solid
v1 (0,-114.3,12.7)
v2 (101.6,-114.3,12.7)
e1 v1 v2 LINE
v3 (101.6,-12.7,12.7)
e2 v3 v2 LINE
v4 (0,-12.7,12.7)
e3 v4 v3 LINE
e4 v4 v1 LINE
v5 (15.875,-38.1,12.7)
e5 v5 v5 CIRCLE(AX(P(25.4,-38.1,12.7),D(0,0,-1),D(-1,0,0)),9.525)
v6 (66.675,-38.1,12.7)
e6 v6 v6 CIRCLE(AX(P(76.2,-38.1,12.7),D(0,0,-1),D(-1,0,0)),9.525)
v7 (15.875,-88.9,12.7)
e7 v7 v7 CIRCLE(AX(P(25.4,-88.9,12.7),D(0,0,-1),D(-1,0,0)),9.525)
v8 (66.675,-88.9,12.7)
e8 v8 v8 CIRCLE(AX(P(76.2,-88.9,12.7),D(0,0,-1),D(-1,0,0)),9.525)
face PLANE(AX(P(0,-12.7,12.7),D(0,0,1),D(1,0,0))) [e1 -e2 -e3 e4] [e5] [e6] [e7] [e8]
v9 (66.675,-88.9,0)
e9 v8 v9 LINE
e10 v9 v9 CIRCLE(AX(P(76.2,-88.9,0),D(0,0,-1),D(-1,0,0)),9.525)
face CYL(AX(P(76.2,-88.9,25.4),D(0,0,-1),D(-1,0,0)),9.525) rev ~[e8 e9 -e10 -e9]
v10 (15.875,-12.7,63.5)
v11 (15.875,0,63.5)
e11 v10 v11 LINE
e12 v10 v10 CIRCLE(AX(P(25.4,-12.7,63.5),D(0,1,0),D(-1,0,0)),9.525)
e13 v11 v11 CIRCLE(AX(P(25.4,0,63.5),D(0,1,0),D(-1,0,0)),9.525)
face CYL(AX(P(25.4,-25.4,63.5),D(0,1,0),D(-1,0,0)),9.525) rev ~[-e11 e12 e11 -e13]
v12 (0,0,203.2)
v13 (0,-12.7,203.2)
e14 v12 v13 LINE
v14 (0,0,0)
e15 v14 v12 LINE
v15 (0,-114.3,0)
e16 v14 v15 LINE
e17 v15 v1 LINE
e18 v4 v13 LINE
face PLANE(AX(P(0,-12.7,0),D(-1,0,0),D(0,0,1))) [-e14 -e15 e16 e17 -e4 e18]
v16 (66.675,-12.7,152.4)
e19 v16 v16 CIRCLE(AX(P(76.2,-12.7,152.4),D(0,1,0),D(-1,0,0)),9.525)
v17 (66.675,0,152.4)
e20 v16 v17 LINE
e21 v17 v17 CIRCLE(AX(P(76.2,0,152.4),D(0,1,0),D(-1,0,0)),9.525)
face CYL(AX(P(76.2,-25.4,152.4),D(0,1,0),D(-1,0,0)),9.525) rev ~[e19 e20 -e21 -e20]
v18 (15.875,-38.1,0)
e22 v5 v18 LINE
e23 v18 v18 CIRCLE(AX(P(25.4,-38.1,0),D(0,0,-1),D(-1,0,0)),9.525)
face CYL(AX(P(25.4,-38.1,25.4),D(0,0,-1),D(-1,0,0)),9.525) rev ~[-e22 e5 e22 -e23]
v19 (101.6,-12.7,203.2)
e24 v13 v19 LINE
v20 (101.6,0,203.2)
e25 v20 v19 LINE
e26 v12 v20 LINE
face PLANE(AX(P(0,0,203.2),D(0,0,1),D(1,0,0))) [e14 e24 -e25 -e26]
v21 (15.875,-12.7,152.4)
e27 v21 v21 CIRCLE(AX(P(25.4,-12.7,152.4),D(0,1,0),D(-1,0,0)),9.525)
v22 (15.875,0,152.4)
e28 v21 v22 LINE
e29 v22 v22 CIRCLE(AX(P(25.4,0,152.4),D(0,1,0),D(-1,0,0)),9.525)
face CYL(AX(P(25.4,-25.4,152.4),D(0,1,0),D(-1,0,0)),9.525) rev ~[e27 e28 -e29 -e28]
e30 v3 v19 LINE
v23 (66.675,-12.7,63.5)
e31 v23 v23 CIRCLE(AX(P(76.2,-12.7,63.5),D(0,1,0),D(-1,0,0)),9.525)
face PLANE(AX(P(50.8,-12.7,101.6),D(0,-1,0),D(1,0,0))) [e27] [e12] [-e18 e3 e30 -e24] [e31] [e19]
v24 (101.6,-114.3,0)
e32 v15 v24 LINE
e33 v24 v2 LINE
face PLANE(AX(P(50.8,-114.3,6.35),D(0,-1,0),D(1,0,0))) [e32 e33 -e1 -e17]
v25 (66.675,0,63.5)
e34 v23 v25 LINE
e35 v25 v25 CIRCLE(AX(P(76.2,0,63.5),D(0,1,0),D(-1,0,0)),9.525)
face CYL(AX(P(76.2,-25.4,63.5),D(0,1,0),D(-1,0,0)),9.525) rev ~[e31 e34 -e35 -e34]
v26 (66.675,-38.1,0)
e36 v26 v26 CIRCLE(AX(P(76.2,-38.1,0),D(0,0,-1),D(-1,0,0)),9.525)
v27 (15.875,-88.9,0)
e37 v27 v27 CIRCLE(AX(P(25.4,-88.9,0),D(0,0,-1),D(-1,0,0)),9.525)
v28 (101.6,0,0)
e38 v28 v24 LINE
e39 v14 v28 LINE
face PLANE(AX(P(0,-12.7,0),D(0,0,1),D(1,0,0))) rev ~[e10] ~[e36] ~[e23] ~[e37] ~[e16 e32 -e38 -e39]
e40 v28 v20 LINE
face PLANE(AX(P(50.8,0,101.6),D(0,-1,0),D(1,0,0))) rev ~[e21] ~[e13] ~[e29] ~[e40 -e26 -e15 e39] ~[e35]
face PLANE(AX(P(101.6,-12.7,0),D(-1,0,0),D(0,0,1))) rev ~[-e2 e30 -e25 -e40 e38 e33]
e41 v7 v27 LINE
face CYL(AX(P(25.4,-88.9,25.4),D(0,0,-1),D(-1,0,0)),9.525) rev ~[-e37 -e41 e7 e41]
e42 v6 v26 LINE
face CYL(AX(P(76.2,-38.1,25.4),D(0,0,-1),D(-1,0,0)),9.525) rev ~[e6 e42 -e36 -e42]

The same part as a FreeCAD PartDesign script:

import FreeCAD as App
import Part
import Sketcher
from FreeCAD import Vector
Q = App.Units.Quantity

doc = App.newDocument("Part")
body = doc.addObject("PartDesign::Body", "Body")

# Sketch on XZ plane
sketch1 = doc.addObject("Sketcher::SketchObject", "Sketch")
body.addObject(sketch1)
sketch1.AttachmentSupport = (doc.XZ_Plane, [""])
sketch1.MapMode = "FlatFace"
sketch1.addGeometry(Part.LineSegment(Vector(0, 203.2, 0), Vector(0, 0, 0)), False)
sketch1.addGeometry(Part.LineSegment(Vector(0, 0, 0), Vector(101.6, 0, 0)), False)
sketch1.addGeometry(Part.LineSegment(Vector(101.6, 0, 0), Vector(101.6, 203.2, 0)), False)
sketch1.addGeometry(Part.LineSegment(Vector(101.6, 203.2, 0), Vector(0, 203.2, 0)), False)
sketch1.addConstraint(Sketcher.Constraint("Coincident", 0, 2, 1, 1))
sketch1.addConstraint(Sketcher.Constraint("Coincident", 1, 2, 2, 1))
sketch1.addConstraint(Sketcher.Constraint("Coincident", 2, 2, 3, 1))
sketch1.addConstraint(Sketcher.Constraint("Coincident", 3, 2, 0, 1))
sketch1.addConstraint(Sketcher.Constraint("Vertical", 0))
sketch1.addConstraint(Sketcher.Constraint("Horizontal", 1))
sketch1.addConstraint(Sketcher.Constraint("Vertical", 2))
sketch1.addConstraint(Sketcher.Constraint("Horizontal", 3))
sketch1.addConstraint(Sketcher.Constraint("Coincident", 0, 2, -1, 1))
sketch1.addConstraint(Sketcher.Constraint("DistanceX", 1, 1, 1, 2, Q("4 in")))
sketch1.addConstraint(Sketcher.Constraint("DistanceY", 0, 2, 0, 1, Q("8 in")))
pad1 = doc.addObject("PartDesign::Pad", "Pad")
body.addObject(pad1)
pad1.Profile = sketch1
pad1.Length = Q("0.5 in")

# Sketch on XZ plane
sketch2 = doc.addObject("Sketcher::SketchObject", "Sketch001")
body.addObject(sketch2)
sketch2.AttachmentSupport = (doc.XZ_Plane, [""])
sketch2.MapMode = "FlatFace"
sketch2.AttachmentOffset = App.Placement(Vector(0, 0, 0.5 * 25.4), App.Rotation())
sketch2.addGeometry(Part.LineSegment(Vector(0, 12.7, 0), Vector(0, 0, 0)), False)
sketch2.addGeometry(Part.LineSegment(Vector(0, 0, 0), Vector(101.6, 0, 0)), False)
sketch2.addGeometry(Part.LineSegment(Vector(101.6, 0, 0), Vector(101.6, 12.7, 0)), False)
sketch2.addGeometry(Part.LineSegment(Vector(101.6, 12.7, 0), Vector(0, 12.7, 0)), False)
sketch2.addConstraint(Sketcher.Constraint("Coincident", 0, 2, 1, 1))
sketch2.addConstraint(Sketcher.Constraint("Coincident", 1, 2, 2, 1))
sketch2.addConstraint(Sketcher.Constraint("Coincident", 2, 2, 3, 1))
sketch2.addConstraint(Sketcher.Constraint("Coincident", 3, 2, 0, 1))
sketch2.addConstraint(Sketcher.Constraint("Vertical", 0))
sketch2.addConstraint(Sketcher.Constraint("Horizontal", 1))
sketch2.addConstraint(Sketcher.Constraint("Vertical", 2))
sketch2.addConstraint(Sketcher.Constraint("Horizontal", 3))
sketch2.addConstraint(Sketcher.Constraint("Coincident", 0, 2, -1, 1))
sketch2.addConstraint(Sketcher.Constraint("DistanceX", 1, 1, 1, 2, Q("4 in")))
sketch2.addConstraint(Sketcher.Constraint("DistanceY", 0, 2, 0, 1, Q("0.5 in")))
pad2 = doc.addObject("PartDesign::Pad", "Pad001")
body.addObject(pad2)
pad2.Profile = sketch2
pad2.Length = Q("4 in")

# Sketch on XY plane
sketch3 = doc.addObject("Sketcher::SketchObject", "Sketch002")
body.addObject(sketch3)
sketch3.AttachmentSupport = (doc.XY_Plane, [""])
sketch3.MapMode = "FlatFace"
sketch3.AttachmentOffset = App.Placement(Vector(0, 0, 0.5 * 25.4), App.Rotation())
sketch3.addGeometry(Part.Circle(Vector(25.4, -88.9, 0), Vector(0, 0, 1), 9.525), False)
sketch3.addConstraint(Sketcher.Constraint("Diameter", 0, Q("0.75 in")))
sketch3.addConstraint(Sketcher.Constraint("DistanceX", -1, 1, 0, 3, Q("1 in")))
sketch3.addConstraint(Sketcher.Constraint("DistanceY", 0, 3, -1, 1, Q("3.5 in")))
doc.recompute()
hole = doc.addObject("PartDesign::Hole", "Hole")
body.addObject(hole)
hole.Profile = sketch3
hole.ThreadType = "None"
hole.Diameter = Q("0.75 in")
hole.DepthType = "Dimension"
hole.Depth = Q("0.5 in")
hole.DrillPoint = "Flat"

# Sketch on XY plane
sketch4 = doc.addObject("Sketcher::SketchObject", "Sketch003")
body.addObject(sketch4)
sketch4.AttachmentSupport = (doc.XY_Plane, [""])
sketch4.MapMode = "FlatFace"
sketch4.AttachmentOffset = App.Placement(Vector(0, 0, 0.5 * 25.4), App.Rotation())
sketch4.addGeometry(Part.Circle(Vector(25.4, -38.1, 0), Vector(0, 0, 1), 9.525), False)
sketch4.addGeometry(Part.Circle(Vector(76.2, -38.1, 0), Vector(0, 0, 1), 9.525), False)
sketch4.addGeometry(Part.Circle(Vector(76.2, -88.9, 0), Vector(0, 0, 1), 9.525), False)
sketch4.addConstraint(Sketcher.Constraint("Equal", 0, 1))
sketch4.addConstraint(Sketcher.Constraint("Equal", 1, 2))
sketch4.addConstraint(Sketcher.Constraint("Horizontal", 0, 3, 1, 3))
sketch4.addConstraint(Sketcher.Constraint("Vertical", 1, 3, 2, 3))
sketch4.addConstraint(Sketcher.Constraint("Diameter", 0, Q("0.75 in")))
sketch4.addConstraint(Sketcher.Constraint("DistanceX", -1, 1, 0, 3, Q("1 in")))
sketch4.addConstraint(Sketcher.Constraint("DistanceX", -1, 1, 1, 3, Q("3 in")))
sketch4.addConstraint(Sketcher.Constraint("DistanceY", 2, 3, 1, 3, Q("2 in")))
sketch4.addConstraint(Sketcher.Constraint("DistanceY", 0, 3, -1, 1, Q("1.5 in")))
doc.recompute()
hole2 = doc.addObject("PartDesign::Hole", "Hole001")
body.addObject(hole2)
hole2.Profile = sketch4
hole2.ThreadType = "None"
hole2.Diameter = Q("0.75 in")
hole2.DepthType = "Dimension"
hole2.Depth = Q("0.5 in")
hole2.DrillPoint = "Flat"

# Sketch on XZ plane
sketch5 = doc.addObject("Sketcher::SketchObject", "Sketch004")
body.addObject(sketch5)
sketch5.AttachmentSupport = (doc.XZ_Plane, [""])
sketch5.MapMode = "FlatFace"
sketch5.AttachmentOffset = App.Placement(Vector(0, 0, 0.5 * 25.4), App.Rotation())
sketch5.addGeometry(Part.Circle(Vector(25.4, 152.4, 0), Vector(0, 0, 1), 9.525), False)
sketch5.addGeometry(Part.Circle(Vector(76.2, 152.4, 0), Vector(0, 0, 1), 9.525), False)
sketch5.addGeometry(Part.Circle(Vector(76.2, 63.5, 0), Vector(0, 0, 1), 9.525), False)
sketch5.addGeometry(Part.Circle(Vector(25.4, 63.5, 0), Vector(0, 0, 1), 9.525), False)
sketch5.addConstraint(Sketcher.Constraint("Equal", 0, 1))
sketch5.addConstraint(Sketcher.Constraint("Equal", 1, 2))
sketch5.addConstraint(Sketcher.Constraint("Equal", 2, 3))
sketch5.addConstraint(Sketcher.Constraint("Horizontal", 0, 3, 1, 3))
sketch5.addConstraint(Sketcher.Constraint("Horizontal", 2, 3, 3, 3))
sketch5.addConstraint(Sketcher.Constraint("Vertical", 1, 3, 2, 3))
sketch5.addConstraint(Sketcher.Constraint("Vertical", 0, 3, 3, 3))
sketch5.addConstraint(Sketcher.Constraint("Diameter", 0, Q("0.75 in")))
sketch5.addConstraint(Sketcher.Constraint("DistanceX", -1, 1, 0, 3, Q("1 in")))
sketch5.addConstraint(Sketcher.Constraint("DistanceY", -1, 1, 0, 3, Q("6 in")))
sketch5.addConstraint(Sketcher.Constraint("DistanceX", -1, 1, 1, 3, Q("3 in")))
sketch5.addConstraint(Sketcher.Constraint("DistanceY", -1, 1, 2, 3, Q("2.5 in")))
doc.recompute()
hole3 = doc.addObject("PartDesign::Hole", "Hole002")
body.addObject(hole3)
hole3.Profile = sketch5
hole3.ThreadType = "None"
hole3.Diameter = Q("0.75 in")
hole3.DepthType = "Dimension"
hole3.Depth = Q("0.5 in")
hole3.DrillPoint = "Flat"

doc.recompute()
